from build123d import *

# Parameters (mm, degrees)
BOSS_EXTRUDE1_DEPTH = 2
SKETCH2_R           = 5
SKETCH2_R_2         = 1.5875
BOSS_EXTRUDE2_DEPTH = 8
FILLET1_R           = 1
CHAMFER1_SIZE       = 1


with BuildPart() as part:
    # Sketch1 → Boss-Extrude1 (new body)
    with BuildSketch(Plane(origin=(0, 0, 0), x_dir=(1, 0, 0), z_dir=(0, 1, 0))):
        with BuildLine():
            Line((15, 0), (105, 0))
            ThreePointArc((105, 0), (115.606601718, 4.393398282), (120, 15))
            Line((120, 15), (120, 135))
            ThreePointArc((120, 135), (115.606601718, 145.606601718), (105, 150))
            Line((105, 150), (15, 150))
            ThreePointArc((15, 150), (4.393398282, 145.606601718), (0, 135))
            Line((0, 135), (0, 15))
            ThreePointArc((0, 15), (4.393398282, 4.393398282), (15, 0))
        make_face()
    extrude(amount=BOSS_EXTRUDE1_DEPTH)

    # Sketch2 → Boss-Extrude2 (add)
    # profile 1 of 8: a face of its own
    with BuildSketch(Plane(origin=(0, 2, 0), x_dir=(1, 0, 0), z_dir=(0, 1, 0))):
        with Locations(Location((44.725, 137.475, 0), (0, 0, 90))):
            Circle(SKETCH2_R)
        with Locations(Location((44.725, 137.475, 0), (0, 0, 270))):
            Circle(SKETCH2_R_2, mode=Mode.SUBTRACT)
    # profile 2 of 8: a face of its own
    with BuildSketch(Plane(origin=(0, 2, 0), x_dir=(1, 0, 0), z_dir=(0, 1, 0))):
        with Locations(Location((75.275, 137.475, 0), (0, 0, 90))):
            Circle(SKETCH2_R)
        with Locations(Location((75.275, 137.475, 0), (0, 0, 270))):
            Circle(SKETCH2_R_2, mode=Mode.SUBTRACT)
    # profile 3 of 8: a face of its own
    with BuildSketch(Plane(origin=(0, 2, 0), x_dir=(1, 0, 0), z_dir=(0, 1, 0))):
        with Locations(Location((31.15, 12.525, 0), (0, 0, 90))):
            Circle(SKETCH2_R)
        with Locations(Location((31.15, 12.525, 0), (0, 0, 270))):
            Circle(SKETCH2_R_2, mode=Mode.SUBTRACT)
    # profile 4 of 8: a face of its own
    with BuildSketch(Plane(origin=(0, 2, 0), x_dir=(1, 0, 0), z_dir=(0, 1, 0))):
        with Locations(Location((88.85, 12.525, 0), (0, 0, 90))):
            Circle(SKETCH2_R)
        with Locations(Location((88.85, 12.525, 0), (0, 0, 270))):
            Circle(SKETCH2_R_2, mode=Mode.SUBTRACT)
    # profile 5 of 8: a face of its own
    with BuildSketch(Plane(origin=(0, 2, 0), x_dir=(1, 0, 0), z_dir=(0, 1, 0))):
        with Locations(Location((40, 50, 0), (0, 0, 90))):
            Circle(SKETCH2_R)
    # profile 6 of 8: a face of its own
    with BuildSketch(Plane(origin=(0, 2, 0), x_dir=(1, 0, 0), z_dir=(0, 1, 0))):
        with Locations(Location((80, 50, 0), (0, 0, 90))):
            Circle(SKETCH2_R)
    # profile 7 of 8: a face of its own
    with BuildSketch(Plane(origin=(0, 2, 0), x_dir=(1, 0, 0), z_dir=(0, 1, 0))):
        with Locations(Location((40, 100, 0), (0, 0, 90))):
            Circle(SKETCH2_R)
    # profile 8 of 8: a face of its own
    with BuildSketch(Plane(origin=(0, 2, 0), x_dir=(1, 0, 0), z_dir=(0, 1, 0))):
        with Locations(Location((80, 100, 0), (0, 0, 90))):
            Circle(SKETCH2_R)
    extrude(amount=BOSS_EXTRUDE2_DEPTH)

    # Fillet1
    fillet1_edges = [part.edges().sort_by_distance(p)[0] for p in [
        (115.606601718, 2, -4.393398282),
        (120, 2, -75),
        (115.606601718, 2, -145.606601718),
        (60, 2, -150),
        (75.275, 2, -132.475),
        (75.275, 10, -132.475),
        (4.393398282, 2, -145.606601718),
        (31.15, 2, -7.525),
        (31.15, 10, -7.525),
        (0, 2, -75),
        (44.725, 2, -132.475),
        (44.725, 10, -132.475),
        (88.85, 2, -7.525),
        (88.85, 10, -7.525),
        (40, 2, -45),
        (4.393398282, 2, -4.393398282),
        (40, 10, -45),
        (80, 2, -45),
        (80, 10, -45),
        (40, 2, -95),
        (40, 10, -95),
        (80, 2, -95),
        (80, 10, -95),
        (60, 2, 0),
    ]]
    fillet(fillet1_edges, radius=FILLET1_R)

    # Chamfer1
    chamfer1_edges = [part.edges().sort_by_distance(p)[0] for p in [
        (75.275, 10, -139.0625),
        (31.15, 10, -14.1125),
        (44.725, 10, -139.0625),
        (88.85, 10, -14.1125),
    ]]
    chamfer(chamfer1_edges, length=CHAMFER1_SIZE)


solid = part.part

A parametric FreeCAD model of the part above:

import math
import FreeCAD as App
import Part
import Sketcher
from FreeCAD import Vector
Q = App.Units.Quantity


def edges_at(feature, points):
    """Names of the edges that pass closest to the given points."""
    edges = feature.Shape.Edges
    near = lambda p: min(range(len(edges)), key=lambda i: edges[i].distToShape(Part.Vertex(*p))[0])
    return sorted({f"Edge{near(p) + 1}" for p in points})

doc = App.newDocument("Part")
body = doc.addObject("PartDesign::Body", "Body")

sketch1 = body.newObject("Sketcher::SketchObject", "Sketch")
sketch1.AttachmentSupport = (doc.getObject("XZ_Plane"), [""])
sketch1.MapMode = "FlatFace"
sketch1.addGeometry([
    Part.LineSegment(Vector(15, 0, 0), Vector(105, 0, 0)),
    Part.ArcOfCircle(Part.Circle(Vector(105, -15, 0), Vector(0, 0, 1), 15), math.radians(0), math.radians(90)),
    Part.LineSegment(Vector(120, -15, 0), Vector(120, -135, 0)),
    Part.ArcOfCircle(Part.Circle(Vector(105, -135, 0), Vector(0, 0, 1), 15), math.radians(-90), math.radians(0)),
    Part.LineSegment(Vector(105, -150, 0), Vector(15, -150, 0)),
    Part.ArcOfCircle(Part.Circle(Vector(15, -135, 0), Vector(0, 0, 1), 15), math.radians(180), math.radians(270)),
    Part.LineSegment(Vector(0, -135, 0), Vector(0, -15, 0)),
    Part.ArcOfCircle(Part.Circle(Vector(15, -15, 0), Vector(0, 0, 1), 15), math.radians(90), math.radians(180)),
], False)
sketch1.addConstraint([
    Sketcher.Constraint("Tangent", 0, 2, 1, 2),
    Sketcher.Constraint("Tangent", 1, 1, 2, 1),
    Sketcher.Constraint("Tangent", 2, 2, 3, 2),
    Sketcher.Constraint("Tangent", 3, 1, 4, 1),
    Sketcher.Constraint("Tangent", 4, 2, 5, 2),
    Sketcher.Constraint("Tangent", 5, 1, 6, 1),
    Sketcher.Constraint("Tangent", 6, 2, 7, 2),
    Sketcher.Constraint("Tangent", 7, 1, 0, 1),
    Sketcher.Constraint("Horizontal", 0),
    Sketcher.Constraint("Vertical", 2),
    Sketcher.Constraint("Horizontal", 4),
    Sketcher.Constraint("Vertical", 6),
    Sketcher.Constraint("Equal", 1, 3),
    Sketcher.Constraint("Equal", 3, 5),
    Sketcher.Constraint("Equal", 5, 7),
    Sketcher.Constraint("PointOnObject", 0, 2, -1),
    Sketcher.Constraint("PointOnObject", 5, 1, -2),
    Sketcher.Constraint("Radius", 1, Q("15 mm")),
    Sketcher.Constraint("DistanceX", 0, 1, 0, 2, Q("90 mm")),
    Sketcher.Constraint("DistanceY", 2, 2, 2, 1, Q("120 mm")),
])
pad1 = body.newObject("PartDesign::Pad", "Pad")
pad1.Profile = sketch1
pad1.Length = 2
pad1.Reversed = True

sketch2 = body.newObject("Sketcher::SketchObject", "Sketch001")
sketch2.AttachmentSupport = (doc.getObject("XZ_Plane"), [""])
sketch2.MapMode = "FlatFace"
sketch2.AttachmentOffset = App.Placement(Vector(0, 0, -2), App.Rotation())
sketch2.addGeometry([
    Part.Circle(Vector(44.7, -137.5, 0), Vector(0, 0, 1), 5),
    Part.Circle(Vector(44.7, -137.5, 0), Vector(0, 0, 1), 1.6),
    Part.Circle(Vector(75.3, -137.5, 0), Vector(0, 0, 1), 5),
    Part.Circle(Vector(75.3, -137.5, 0), Vector(0, 0, 1), 1.6),
    Part.Circle(Vector(31.1, -12.5, 0), Vector(0, 0, 1), 5),
    Part.Circle(Vector(31.1, -12.5, 0), Vector(0, 0, 1), 1.6),
    Part.Circle(Vector(88.8, -12.5, 0), Vector(0, 0, 1), 5),
    Part.Circle(Vector(88.8, -12.5, 0), Vector(0, 0, 1), 1.6),
    Part.Circle(Vector(40, -50, 0), Vector(0, 0, 1), 5),
    Part.Circle(Vector(80, -50, 0), Vector(0, 0, 1), 5),
    Part.Circle(Vector(40, -100, 0), Vector(0, 0, 1), 5),
    Part.Circle(Vector(80, -100, 0), Vector(0, 0, 1), 5),
], False)
sketch2.addConstraint([
    Sketcher.Constraint("Coincident", 1, 3, 0, 3),
    Sketcher.Constraint("Coincident", 3, 3, 2, 3),
    Sketcher.Constraint("Coincident", 5, 3, 4, 3),
    Sketcher.Constraint("Coincident", 7, 3, 6, 3),
    Sketcher.Constraint("Equal", 0, 2),
    Sketcher.Constraint("Equal", 1, 3),
    Sketcher.Constraint("Equal", 2, 4),
    Sketcher.Constraint("Equal", 3, 5),
    Sketcher.Constraint("Equal", 4, 6),
    Sketcher.Constraint("Equal", 5, 7),
    Sketcher.Constraint("Equal", 6, 8),
    Sketcher.Constraint("Equal", 8, 9),
    Sketcher.Constraint("Equal", 9, 10),
    Sketcher.Constraint("Equal", 10, 11),
    Sketcher.Constraint("Horizontal", 1, 3, 2, 3),
    Sketcher.Constraint("Horizontal", 5, 3, 6, 3),
    Sketcher.Constraint("Horizontal", 8, 3, 9, 3),
    Sketcher.Constraint("Horizontal", 10, 3, 11, 3),
    Sketcher.Constraint("Vertical", 8, 3, 10, 3),
    Sketcher.Constraint("Vertical", 9, 3, 11, 3),
    Sketcher.Constraint("Diameter", 0, Q("10 mm")),
    Sketcher.Constraint("Diameter", 1, Q("3.175 mm")),
    Sketcher.Constraint("DistanceX", -1, 1, 8, 3, Q("40 mm")),
    Sketcher.Constraint("DistanceY", 8, 3, -1, 1, Q("50 mm")),
    Sketcher.Constraint("DistanceX", -1, 1, 9, 3, Q("80 mm")),
    Sketcher.Constraint("DistanceY", 10, 3, -1, 1, Q("100 mm")),
    Sketcher.Constraint("DistanceX", 4, 3, 6, 3, Q("57.7 mm")),
    Sketcher.Constraint("DistanceX", -1, 1, 4, 3, Q("31.15 mm")),
    Sketcher.Constraint("DistanceX", 0, 3, 2, 3, Q("30.55 mm")),
    Sketcher.Constraint("DistanceY", 0, 3, 4, 3, Q("124.95 mm")),
    Sketcher.Constraint("DistanceX", -1, 1, 0, 3, Q("44.725 mm")),
    Sketcher.Constraint("DistanceY", 0, 3, -1, 1, Q("137.475 mm")),
])
pad2 = body.newObject("PartDesign::Pad", "Pad001")
pad2.Profile = sketch2
pad2.Length = 8
pad2.Reversed = True
doc.recompute()

fillet = body.newObject("PartDesign::Fillet", "Fillet")
fillet.Base = (pad2, edges_at(pad2, [
    (115.607, 2, -4.393),
    (120, 2, -75),
    (115.607, 2, -145.607),
    (60, 2, -150),
    (75.275, 2, -132.475),
    (75.275, 10, -132.475),
    (4.393, 2, -145.607),
    (31.15, 2, -7.525),
    (31.15, 10, -7.525),
    (0, 2, -75),
    (44.725, 2, -132.475),
    (44.725, 10, -132.475),
    (88.85, 2, -7.525),
    (88.85, 10, -7.525),
    (40, 2, -45),
    (4.393, 2, -4.393),
    (40, 10, -45),
    (80, 2, -45),
    (80, 10, -45),
    (40, 2, -95),
    (40, 10, -95),
    (80, 2, -95),
    (80, 10, -95),
    (60, 2, 0),
]))
fillet.Radius = 1
doc.recompute()

chamfer = body.newObject("PartDesign::Chamfer", "Chamfer")
chamfer.Base = (fillet, edges_at(fillet, [
    (75.275, 10, -139.062),
    (31.15, 10, -14.113),
    (44.725, 10, -139.062),
    (88.85, 10, -14.113),
]))
chamfer.Size = 1

doc.recompute()
